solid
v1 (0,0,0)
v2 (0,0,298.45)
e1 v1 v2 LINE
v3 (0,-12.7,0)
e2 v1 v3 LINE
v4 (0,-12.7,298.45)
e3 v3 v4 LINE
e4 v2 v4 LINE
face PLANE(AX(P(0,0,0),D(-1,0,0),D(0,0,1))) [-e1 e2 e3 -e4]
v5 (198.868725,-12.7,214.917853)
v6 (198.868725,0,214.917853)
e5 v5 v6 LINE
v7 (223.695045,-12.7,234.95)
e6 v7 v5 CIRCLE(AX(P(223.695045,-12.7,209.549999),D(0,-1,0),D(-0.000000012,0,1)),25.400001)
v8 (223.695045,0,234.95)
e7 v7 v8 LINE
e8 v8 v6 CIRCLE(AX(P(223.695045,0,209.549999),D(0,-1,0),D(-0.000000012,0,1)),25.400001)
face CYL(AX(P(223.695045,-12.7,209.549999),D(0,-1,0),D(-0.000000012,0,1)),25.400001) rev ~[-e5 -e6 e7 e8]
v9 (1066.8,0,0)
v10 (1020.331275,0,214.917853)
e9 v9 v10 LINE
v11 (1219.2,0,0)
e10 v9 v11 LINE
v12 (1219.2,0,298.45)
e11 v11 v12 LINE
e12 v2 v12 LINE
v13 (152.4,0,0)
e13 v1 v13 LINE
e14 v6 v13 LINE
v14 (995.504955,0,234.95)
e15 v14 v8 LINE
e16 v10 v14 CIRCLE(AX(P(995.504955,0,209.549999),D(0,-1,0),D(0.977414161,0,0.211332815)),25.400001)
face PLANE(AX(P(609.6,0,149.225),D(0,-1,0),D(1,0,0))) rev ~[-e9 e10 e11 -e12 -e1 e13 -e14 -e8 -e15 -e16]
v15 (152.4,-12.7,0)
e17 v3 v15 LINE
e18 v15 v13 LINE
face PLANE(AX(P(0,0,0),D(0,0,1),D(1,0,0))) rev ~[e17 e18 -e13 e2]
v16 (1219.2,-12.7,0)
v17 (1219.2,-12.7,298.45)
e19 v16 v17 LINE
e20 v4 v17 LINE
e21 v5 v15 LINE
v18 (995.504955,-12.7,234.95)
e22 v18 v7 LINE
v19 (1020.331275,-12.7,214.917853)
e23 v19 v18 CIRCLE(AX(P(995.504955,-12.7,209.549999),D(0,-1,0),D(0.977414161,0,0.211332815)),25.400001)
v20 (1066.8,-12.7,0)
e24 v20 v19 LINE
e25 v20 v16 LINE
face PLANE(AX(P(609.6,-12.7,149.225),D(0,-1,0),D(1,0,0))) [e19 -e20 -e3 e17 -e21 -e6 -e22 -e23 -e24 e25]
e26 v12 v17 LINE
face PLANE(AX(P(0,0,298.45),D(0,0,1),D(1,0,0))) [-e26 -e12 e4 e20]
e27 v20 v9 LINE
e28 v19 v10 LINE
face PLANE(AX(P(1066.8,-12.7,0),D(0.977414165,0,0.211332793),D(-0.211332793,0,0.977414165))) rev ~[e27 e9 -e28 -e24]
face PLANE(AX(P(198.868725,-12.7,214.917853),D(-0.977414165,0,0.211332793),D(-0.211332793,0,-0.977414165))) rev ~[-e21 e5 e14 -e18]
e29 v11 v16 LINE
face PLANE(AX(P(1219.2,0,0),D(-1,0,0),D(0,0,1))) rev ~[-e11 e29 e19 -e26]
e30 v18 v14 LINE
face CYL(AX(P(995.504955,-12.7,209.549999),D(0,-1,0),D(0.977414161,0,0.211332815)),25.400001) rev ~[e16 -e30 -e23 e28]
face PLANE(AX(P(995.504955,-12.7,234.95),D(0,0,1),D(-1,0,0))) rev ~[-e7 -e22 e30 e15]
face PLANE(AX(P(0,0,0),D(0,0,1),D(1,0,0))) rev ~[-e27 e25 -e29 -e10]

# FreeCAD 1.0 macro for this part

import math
import FreeCAD as App
import Part
import Sketcher
from FreeCAD import Vector
Q = App.Units.Quantity

doc = App.newDocument("Part")
body = doc.addObject("PartDesign::Body", "Body")

sketch1 = body.newObject("Sketcher::SketchObject", "Sketch")
sketch1.AttachmentSupport = (doc.getObject("XZ_Plane"), [""])
sketch1.MapMode = "FlatFace"
sketch1.addGeometry([
    Part.LineSegment(Vector(0, 298, 0), Vector(0, 0, 0)),
    Part.LineSegment(Vector(0, 0, 0), Vector(1219, 0, 0)),
    Part.LineSegment(Vector(1219, 0, 0), Vector(1219, 298, 0)),
    Part.LineSegment(Vector(1219, 298, 0), Vector(0, 298, 0)),
], False)
sketch1.addConstraint([
    Sketcher.Constraint("Coincident", 0, 2, 1, 1),
    Sketcher.Constraint("Coincident", 1, 2, 2, 1),
    Sketcher.Constraint("Coincident", 2, 2, 3, 1),
    Sketcher.Constraint("Coincident", 3, 2, 0, 1),
    Sketcher.Constraint("Vertical", 0),
    Sketcher.Constraint("Horizontal", 1),
    Sketcher.Constraint("Vertical", 2),
    Sketcher.Constraint("Horizontal", 3),
    Sketcher.Constraint("Coincident", 0, 2, -1, 1),
    Sketcher.Constraint("DistanceX", 1, 1, 1, 2, Q("48 in")),
    Sketcher.Constraint("DistanceY", 0, 2, 0, 1, Q("11.75 in")),
])
pad1 = body.newObject("PartDesign::Pad", "Pad")
pad1.Profile = sketch1
pad1.Length = Q("0.5 in")

sketch2 = body.newObject("Sketcher::SketchObject", "Sketch001")
sketch2.AttachmentSupport = (doc.getObject("XZ_Plane"), [""])
sketch2.MapMode = "FlatFace"
sketch2.AttachmentOffset = App.Placement(Vector(0, 0, 0.5 * 25.4), App.Rotation())
sketch2.addGeometry([
    Part.LineSegment(Vector(199, 215, 0), Vector(152, 0, 0)),
    Part.LineSegment(Vector(152, 0, 0), Vector(1067, 0, 0)),
    Part.LineSegment(Vector(1067, 0, 0), Vector(1020, 215, 0)),
    Part.ArcOfCircle(Part.Circle(Vector(996, 210, 0), Vector(0, 0, 1), 25), math.radians(12), math.radians(90)),
    Part.LineSegment(Vector(996, 235, 0), Vector(224, 235, 0)),
    Part.ArcOfCircle(Part.Circle(Vector(224, 210, 0), Vector(0, 0, 1), 25), math.radians(90), math.radians(168)),
], False)
sketch2.addConstraint([
    Sketcher.Constraint("Coincident", 0, 2, 1, 1),
    Sketcher.Constraint("Coincident", 1, 2, 2, 1),
    Sketcher.Constraint("Tangent", 2, 2, 3, 1),
    Sketcher.Constraint("Tangent", 3, 2, 4, 1),
    Sketcher.Constraint("Tangent", 4, 2, 5, 1),
    Sketcher.Constraint("Tangent", 5, 2, 0, 1),
    Sketcher.Constraint("Horizontal", 1),
    Sketcher.Constraint("Horizontal", 4),
    Sketcher.Constraint("Equal", 3, 5),
    Sketcher.Constraint("PointOnObject", 0, 2, -1),
    Sketcher.Constraint("Horizontal", 2, 2, 5, 2),
    Sketcher.Constraint("Radius", 3, Q("1 in")),
    Sketcher.Constraint("DistanceX", 1, 1, 1, 2, Q("36 in")),
    Sketcher.Constraint("DistanceX", -1, 1, 0, 2, Q("6 in")),
    Sketcher.Constraint("DistanceY", -1, 1, 3, 3, Q("8.25 in")),
    Sketcher.Constraint("DistanceX", 4, 2, 4, 1, Q("771.80991 mm")),
])
pocket1 = body.newObject("PartDesign::Pocket", "Pocket")
pocket1.Profile = sketch2
pocket1.Type = "ThroughAll"

doc.recompute()
